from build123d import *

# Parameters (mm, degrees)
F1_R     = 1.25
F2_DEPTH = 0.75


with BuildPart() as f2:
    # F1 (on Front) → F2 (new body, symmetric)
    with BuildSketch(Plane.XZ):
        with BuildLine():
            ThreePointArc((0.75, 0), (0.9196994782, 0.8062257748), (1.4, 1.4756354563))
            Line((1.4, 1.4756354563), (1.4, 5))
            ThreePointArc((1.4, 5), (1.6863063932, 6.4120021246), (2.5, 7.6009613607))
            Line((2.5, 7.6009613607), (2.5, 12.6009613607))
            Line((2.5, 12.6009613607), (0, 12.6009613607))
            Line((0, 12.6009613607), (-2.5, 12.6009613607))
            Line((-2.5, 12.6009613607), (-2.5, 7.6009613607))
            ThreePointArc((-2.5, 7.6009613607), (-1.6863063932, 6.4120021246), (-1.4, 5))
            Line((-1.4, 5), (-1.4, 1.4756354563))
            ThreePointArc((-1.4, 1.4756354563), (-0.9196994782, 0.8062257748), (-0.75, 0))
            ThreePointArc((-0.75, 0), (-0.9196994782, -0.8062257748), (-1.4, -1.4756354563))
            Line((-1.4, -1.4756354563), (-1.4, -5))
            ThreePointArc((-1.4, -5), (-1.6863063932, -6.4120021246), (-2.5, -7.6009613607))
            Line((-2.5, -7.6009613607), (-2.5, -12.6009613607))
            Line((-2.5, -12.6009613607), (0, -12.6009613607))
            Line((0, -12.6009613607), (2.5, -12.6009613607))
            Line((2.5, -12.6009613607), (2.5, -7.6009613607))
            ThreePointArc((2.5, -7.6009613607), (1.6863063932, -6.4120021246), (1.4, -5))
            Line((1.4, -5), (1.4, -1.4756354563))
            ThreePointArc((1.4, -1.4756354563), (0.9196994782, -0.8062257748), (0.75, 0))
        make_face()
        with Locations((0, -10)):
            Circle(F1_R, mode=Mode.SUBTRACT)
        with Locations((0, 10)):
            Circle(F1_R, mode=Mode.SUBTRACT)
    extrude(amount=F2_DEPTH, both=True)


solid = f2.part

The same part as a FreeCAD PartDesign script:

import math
import FreeCAD as App
import Part
import Sketcher

V = App.Vector
Q = App.Units.Quantity

doc = App.newDocument("Part")
body = doc.addObject("PartDesign::Body", "Body")

# Sketch on XZ plane
sketch1 = body.newObject("Sketcher::SketchObject", "Sketch")
sketch1.AttachmentSupport = (doc.getObject("XZ_Plane"), [""])
sketch1.MapMode = "FlatFace"
sketch1.addGeometry([
    Part.ArcOfCircle(Part.Circle(V(2.8, 0, 0), V(0, 0, 1), 2), math.radians(132), math.radians(180)),  # 0
    Part.LineSegment(V(1.4, 1.5, 0), V(1.4, 5, 0)),  # 1
    Part.ArcOfCircle(Part.Circle(V(5, 5, 0), V(0, 0, 1), 3.6), math.radians(134), math.radians(180)),  # 2
    Part.LineSegment(V(2.5, 7.6, 0), V(2.5, 12.6, 0)),  # 3
    Part.LineSegment(V(2.5, 12.6, 0), V(-2.5, 12.6, 0)),  # 4
    Part.LineSegment(V(-2.5, 12.6, 0), V(-2.5, 7.6, 0)),  # 5
    Part.ArcOfCircle(Part.Circle(V(-5, 5, 0), V(0, 0, 1), 3.6), math.radians(0), math.radians(46)),  # 6
    Part.LineSegment(V(-1.4, 5, 0), V(-1.4, 1.5, 0)),  # 7
    Part.ArcOfCircle(Part.Circle(V(-2.8, 0, 0), V(0, 0, 1), 2), math.radians(0), math.radians(48)),  # 8
    Part.ArcOfCircle(Part.Circle(V(-2.8, 0, 0), V(0, 0, 1), 2), math.radians(-48), math.radians(0)),  # 9
    Part.LineSegment(V(-1.4, -1.5, 0), V(-1.4, -5, 0)),  # 10
    Part.ArcOfCircle(Part.Circle(V(-5, -5, 0), V(0, 0, 1), 3.6), math.radians(-46), math.radians(0)),  # 11
    Part.LineSegment(V(-2.5, -7.6, 0), V(-2.5, -12.6, 0)),  # 12
    Part.LineSegment(V(-2.5, -12.6, 0), V(2.5, -12.6, 0)),  # 13
    Part.LineSegment(V(2.5, -12.6, 0), V(2.5, -7.6, 0)),  # 14
    Part.ArcOfCircle(Part.Circle(V(5, -5, 0), V(0, 0, 1), 3.6), math.radians(180), math.radians(226)),  # 15
    Part.LineSegment(V(1.4, -5, 0), V(1.4, -1.5, 0)),  # 16
    Part.ArcOfCircle(Part.Circle(V(2.8, 0, 0), V(0, 0, 1), 2), math.radians(180), math.radians(228)),  # 17
    Part.Circle(V(0, -10, 0), V(0, 0, 1), 1.2),  # 18
    Part.Circle(V(0, 10, 0), V(0, 0, 1), 1.2),  # 19
], False)
sketch1.addConstraint([
    Sketcher.Constraint("Coincident", 0, 1, 1, 1),
    Sketcher.Constraint("Tangent", 1, 2, 2, 2),
    Sketcher.Constraint("Coincident", 2, 1, 3, 1),
    Sketcher.Constraint("Coincident", 3, 2, 4, 1),
    Sketcher.Constraint("Coincident", 4, 2, 5, 1),
    Sketcher.Constraint("Coincident", 5, 2, 6, 2),
    Sketcher.Constraint("Tangent", 6, 1, 7, 1),
    Sketcher.Constraint("Coincident", 7, 2, 8, 2),
    Sketcher.Constraint("Tangent", 8, 1, 9, 2),
    Sketcher.Constraint("Coincident", 9, 1, 10, 1),
    Sketcher.Constraint("Tangent", 10, 2, 11, 2),
    Sketcher.Constraint("Coincident", 11, 1, 12, 1),
    Sketcher.Constraint("Coincident", 12, 2, 13, 1),
    Sketcher.Constraint("Coincident", 13, 2, 14, 1),
    Sketcher.Constraint("Coincident", 14, 2, 15, 2),
    Sketcher.Constraint("Tangent", 15, 1, 16, 1),
    Sketcher.Constraint("Coincident", 16, 2, 17, 2),
    Sketcher.Constraint("Tangent", 17, 1, 0, 2),
    Sketcher.Constraint("Vertical", 1),
    Sketcher.Constraint("Vertical", 3),
    Sketcher.Constraint("Horizontal", 4),
    Sketcher.Constraint("Vertical", 5),
    Sketcher.Constraint("Vertical", 7),
    Sketcher.Constraint("Vertical", 10),
    Sketcher.Constraint("Vertical", 12),
    Sketcher.Constraint("Horizontal", 13),
    Sketcher.Constraint("Vertical", 14),
    Sketcher.Constraint("Vertical", 16),
    Sketcher.Constraint("Equal", 2, 6),
    Sketcher.Constraint("Equal", 0, 8),
    Sketcher.Constraint("Equal", 8, 9),
    Sketcher.Constraint("Equal", 6, 11),
    Sketcher.Constraint("Equal", 11, 15),
    Sketcher.Constraint("Equal", 9, 17),
    Sketcher.Constraint("Equal", 18, 19),
    Sketcher.Constraint("Symmetric", 0, 3, 8, 3, -1, 1),
    Sketcher.Constraint("Symmetric", 2, 3, 11, 3, -1, 1),
    Sketcher.Constraint("Symmetric", 6, 3, 15, 3, -1, 1),
    Sketcher.Constraint("Symmetric", 18, 3, 19, 3, -1, 1),
    Sketcher.Constraint("Symmetric", 3, 2, 12, 2, -1, 1),
    Sketcher.Constraint("Symmetric", 2, 3, 6, 3, -2),
    Sketcher.Constraint("PointOnObject", 0, 3, -1),
    Sketcher.Constraint("PointOnObject", 18, 3, -2),
    Sketcher.Constraint("PointOnObject", 8, 1, -1),
    Sketcher.Constraint("PointOnObject", 17, 1, -1),
    Sketcher.Constraint("Horizontal", 2, 1, 5, 2),
    Sketcher.Constraint("Horizontal", 11, 1, 14, 2),
    Sketcher.Constraint("Equal", 13, 3),
    Sketcher.Constraint("Radius", 0, Q("2 mm")),
    Sketcher.Constraint("Diameter", 18, Q("2.5 mm")),
    Sketcher.Constraint("DistanceX", 4, 2, 4, 1, Q("5 mm")),
    Sketcher.Constraint("DistanceY", -1, 1, 2, 3, Q("5 mm")),
    Sketcher.Constraint("DistanceY", 18, 3, -1, 1, Q("10 mm")),
    Sketcher.Constraint("Radius", 2, Q("3.625 mm")),
    Sketcher.Constraint("DistanceX", -1, 1, 0, 1, Q("1.4 mm")),
    Sketcher.Constraint("DistanceX", 8, 3, 0, 3, Q("5.5 mm")),
])
pad1 = body.newObject("PartDesign::Pad", "Pad")
pad1.Profile = sketch1
pad1.Length = 1.5
pad1.Midplane = True

doc.recompute()
